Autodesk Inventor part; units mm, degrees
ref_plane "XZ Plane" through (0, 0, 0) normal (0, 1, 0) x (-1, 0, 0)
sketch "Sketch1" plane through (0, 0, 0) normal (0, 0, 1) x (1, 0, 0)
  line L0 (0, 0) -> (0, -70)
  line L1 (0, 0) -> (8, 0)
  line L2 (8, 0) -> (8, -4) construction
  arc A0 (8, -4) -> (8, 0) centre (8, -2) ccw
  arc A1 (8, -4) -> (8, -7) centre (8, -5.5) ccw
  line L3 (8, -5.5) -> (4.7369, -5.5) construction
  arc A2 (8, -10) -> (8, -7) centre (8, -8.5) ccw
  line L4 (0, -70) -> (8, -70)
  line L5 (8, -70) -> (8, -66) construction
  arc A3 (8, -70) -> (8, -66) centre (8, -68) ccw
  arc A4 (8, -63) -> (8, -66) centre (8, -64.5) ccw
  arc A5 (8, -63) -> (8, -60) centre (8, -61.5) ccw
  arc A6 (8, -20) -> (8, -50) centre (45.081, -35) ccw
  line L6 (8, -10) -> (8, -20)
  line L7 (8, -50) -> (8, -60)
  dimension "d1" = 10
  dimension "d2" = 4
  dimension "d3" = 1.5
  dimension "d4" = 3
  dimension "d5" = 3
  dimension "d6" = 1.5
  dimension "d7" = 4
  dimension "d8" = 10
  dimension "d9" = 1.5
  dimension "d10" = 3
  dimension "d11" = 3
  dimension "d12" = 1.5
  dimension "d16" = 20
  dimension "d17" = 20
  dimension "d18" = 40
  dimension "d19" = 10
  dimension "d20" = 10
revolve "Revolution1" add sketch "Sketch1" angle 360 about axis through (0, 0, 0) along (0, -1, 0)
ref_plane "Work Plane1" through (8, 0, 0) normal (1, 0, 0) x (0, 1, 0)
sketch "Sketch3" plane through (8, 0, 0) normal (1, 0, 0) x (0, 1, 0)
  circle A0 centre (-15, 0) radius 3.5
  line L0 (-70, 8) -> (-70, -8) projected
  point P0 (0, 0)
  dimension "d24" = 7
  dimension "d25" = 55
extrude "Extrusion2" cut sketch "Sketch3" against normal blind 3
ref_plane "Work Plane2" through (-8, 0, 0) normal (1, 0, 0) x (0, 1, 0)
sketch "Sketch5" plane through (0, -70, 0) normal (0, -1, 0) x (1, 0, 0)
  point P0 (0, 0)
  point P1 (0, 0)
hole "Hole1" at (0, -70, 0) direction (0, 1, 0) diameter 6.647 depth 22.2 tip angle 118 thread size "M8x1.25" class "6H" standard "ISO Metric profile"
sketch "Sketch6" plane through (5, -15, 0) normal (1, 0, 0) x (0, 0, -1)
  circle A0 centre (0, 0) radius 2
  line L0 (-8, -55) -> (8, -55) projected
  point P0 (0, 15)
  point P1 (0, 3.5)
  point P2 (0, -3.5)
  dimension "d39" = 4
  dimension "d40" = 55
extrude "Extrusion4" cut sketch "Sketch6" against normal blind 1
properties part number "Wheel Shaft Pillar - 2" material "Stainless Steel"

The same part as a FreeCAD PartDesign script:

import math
import FreeCAD as App
import Part
import Sketcher
from FreeCAD import Vector
Q = App.Units.Quantity

doc = App.newDocument("Part")
body = doc.addObject("PartDesign::Body", "Body")

# Sketch on XY plane
sketch1 = body.newObject("Sketcher::SketchObject", "Sketch")
sketch1.AttachmentSupport = (doc.getObject("XY_Plane"), [""])
sketch1.MapMode = "FlatFace"
sketch1.addGeometry([
    Part.LineSegment(Vector(8, 0, 0), Vector(0, 0, 0)),  # 0
    Part.LineSegment(Vector(0, 0, 0), Vector(0, -70, 0)),  # 1
    Part.LineSegment(Vector(0, -70, 0), Vector(8, -70, 0)),  # 2
    Part.ArcOfCircle(Part.Circle(Vector(8, -68, 0), Vector(0, 0, 1), 2), math.radians(-90), math.radians(90)),  # 3
    Part.ArcOfCircle(Part.Circle(Vector(8, -64.5, 0), Vector(0, 0, 1), 1.5), math.radians(90), math.radians(270)),  # 4
    Part.ArcOfCircle(Part.Circle(Vector(8, -61.5, 0), Vector(0, 0, 1), 1.5), math.radians(-90), math.radians(90)),  # 5
    Part.LineSegment(Vector(8, -60, 0), Vector(8, -50, 0)),  # 6
    Part.ArcOfCircle(Part.Circle(Vector(45.1, -35, 0), Vector(0, 0, 1), 40), math.radians(158), math.radians(202)),  # 7
    Part.LineSegment(Vector(8, -20, 0), Vector(8, -10, 0)),  # 8
    Part.ArcOfCircle(Part.Circle(Vector(8, -8.5, 0), Vector(0, 0, 1), 1.5), math.radians(-90), math.radians(90)),  # 9
    Part.ArcOfCircle(Part.Circle(Vector(8, -5.5, 0), Vector(0, 0, 1), 1.5), math.radians(90), math.radians(270)),  # 10
    Part.ArcOfCircle(Part.Circle(Vector(8, -2, 0), Vector(0, 0, 1), 2), math.radians(-90), math.radians(90)),  # 11
], False)
sketch1.addConstraint([
    Sketcher.Constraint("Coincident", 0, 2, 1, 1),
    Sketcher.Constraint("Coincident", 1, 2, 2, 1),
    Sketcher.Constraint("Tangent", 2, 2, 3, 1),
    Sketcher.Constraint("Tangent", 3, 2, 4, 2),
    Sketcher.Constraint("Tangent", 4, 1, 5, 1),
    Sketcher.Constraint("Coincident", 5, 2, 6, 1),
    Sketcher.Constraint("Coincident", 6, 2, 7, 2),
    Sketcher.Constraint("Coincident", 7, 1, 8, 1),
    Sketcher.Constraint("Coincident", 8, 2, 9, 1),
    Sketcher.Constraint("Tangent", 9, 2, 10, 2),
    Sketcher.Constraint("Tangent", 10, 1, 11, 1),
    Sketcher.Constraint("Tangent", 11, 2, 0, 1),
    Sketcher.Constraint("Horizontal", 0),
    Sketcher.Constraint("Vertical", 1),
    Sketcher.Constraint("Horizontal", 2),
    Sketcher.Constraint("Vertical", 6),
    Sketcher.Constraint("Vertical", 8),
    Sketcher.Constraint("Coincident", 0, 2, -1, 1),
    Sketcher.Constraint("Equal", 4, 5),
    Sketcher.Constraint("Equal", 5, 9),
    Sketcher.Constraint("Equal", 9, 10),
    Sketcher.Constraint("Equal", 3, 11),
    Sketcher.Constraint("Vertical", 3, 3, 4, 3),
    Sketcher.Constraint("Vertical", 4, 3, 5, 3),
    Sketcher.Constraint("Vertical", 5, 3, 9, 3),
    Sketcher.Constraint("Vertical", 9, 3, 10, 3),
    Sketcher.Constraint("Vertical", 10, 3, 11, 3),
    Sketcher.Constraint("Vertical", 4, 1, 5, 2),
    Sketcher.Constraint("Vertical", 6, 2, 7, 1),
    Sketcher.Constraint("Equal", 6, 8),
    Sketcher.Constraint("Radius", 3, Q("2 mm")),
    Sketcher.Constraint("Radius", 7, Q("40 mm")),
    Sketcher.Constraint("Radius", 4, Q("1.5 mm")),
    Sketcher.Constraint("DistanceY", 6, 1, 6, 2, Q("10 mm")),
    Sketcher.Constraint("DistanceX", 0, 2, 0, 1, Q("8 mm")),
    Sketcher.Constraint("DistanceY", 1, 2, 1, 1, Q("70 mm")),
])
revolution = body.newObject("PartDesign::Revolution", "Revolution")
revolution.Profile = sketch1
revolution.ReferenceAxis = (sketch1, ["V_Axis"])
revolution.Angle = 360

# Sketch on YZ plane
sketch2 = body.newObject("Sketcher::SketchObject", "Sketch001")
sketch2.AttachmentSupport = (doc.getObject("YZ_Plane"), [""])
sketch2.MapMode = "FlatFace"
sketch2.AttachmentOffset = App.Placement(Vector(0, 0, 8), App.Rotation())
sketch2.addGeometry(Part.Circle(Vector(-15, 0, 0), Vector(0, 0, 1), 3.5), False)
sketch2.addConstraint([
    Sketcher.Constraint("PointOnObject", 0, 3, -1),
    Sketcher.Constraint("Diameter", 0, Q("7 mm")),
    Sketcher.Constraint("DistanceX", 0, 3, -1, 1, Q("15 mm")),
])
pocket1 = body.newObject("PartDesign::Pocket", "Pocket")
pocket1.Profile = sketch2
pocket1.Length = 3

# Sketch on XZ plane
sketch3 = body.newObject("Sketcher::SketchObject", "Sketch002")
sketch3.AttachmentSupport = (doc.getObject("XZ_Plane"), [""])
sketch3.MapMode = "FlatFace"
sketch3.AttachmentOffset = App.Placement(Vector(0, 0, 70), App.Rotation())
sketch3.addGeometry(Part.Circle(Vector(0, 0, 0), Vector(0, 0, 1), 3.3), False)
sketch3.addConstraint([
    Sketcher.Constraint("Coincident", 0, 3, -1, 1),
    Sketcher.Constraint("Diameter", 0, Q("6.647 mm")),
])
doc.recompute()
hole = body.newObject("PartDesign::Hole", "Hole")
hole.Profile = sketch3
hole.ThreadType = "None"
hole.Diameter = 6.647
hole.DepthType = "Dimension"
hole.Depth = 22.2
hole.DrillPoint = "Angled"
hole.DrillPointAngle = 118

# Sketch on YZ plane
sketch4 = body.newObject("Sketcher::SketchObject", "Sketch003")
sketch4.AttachmentSupport = (doc.getObject("YZ_Plane"), [""])
sketch4.MapMode = "FlatFace"
sketch4.AttachmentOffset = App.Placement(Vector(0, 0, 5), App.Rotation())
sketch4.addGeometry(Part.Circle(Vector(-15, 0, 0), Vector(0, 0, 1), 2), False)
sketch4.addConstraint([
    Sketcher.Constraint("PointOnObject", 0, 3, -1),
    Sketcher.Constraint("Diameter", 0, Q("4 mm")),
    Sketcher.Constraint("DistanceX", 0, 3, -1, 1, Q("15 mm")),
])
pocket2 = body.newObject("PartDesign::Pocket", "Pocket001")
pocket2.Profile = sketch4
pocket2.Length = 1

doc.recompute()
